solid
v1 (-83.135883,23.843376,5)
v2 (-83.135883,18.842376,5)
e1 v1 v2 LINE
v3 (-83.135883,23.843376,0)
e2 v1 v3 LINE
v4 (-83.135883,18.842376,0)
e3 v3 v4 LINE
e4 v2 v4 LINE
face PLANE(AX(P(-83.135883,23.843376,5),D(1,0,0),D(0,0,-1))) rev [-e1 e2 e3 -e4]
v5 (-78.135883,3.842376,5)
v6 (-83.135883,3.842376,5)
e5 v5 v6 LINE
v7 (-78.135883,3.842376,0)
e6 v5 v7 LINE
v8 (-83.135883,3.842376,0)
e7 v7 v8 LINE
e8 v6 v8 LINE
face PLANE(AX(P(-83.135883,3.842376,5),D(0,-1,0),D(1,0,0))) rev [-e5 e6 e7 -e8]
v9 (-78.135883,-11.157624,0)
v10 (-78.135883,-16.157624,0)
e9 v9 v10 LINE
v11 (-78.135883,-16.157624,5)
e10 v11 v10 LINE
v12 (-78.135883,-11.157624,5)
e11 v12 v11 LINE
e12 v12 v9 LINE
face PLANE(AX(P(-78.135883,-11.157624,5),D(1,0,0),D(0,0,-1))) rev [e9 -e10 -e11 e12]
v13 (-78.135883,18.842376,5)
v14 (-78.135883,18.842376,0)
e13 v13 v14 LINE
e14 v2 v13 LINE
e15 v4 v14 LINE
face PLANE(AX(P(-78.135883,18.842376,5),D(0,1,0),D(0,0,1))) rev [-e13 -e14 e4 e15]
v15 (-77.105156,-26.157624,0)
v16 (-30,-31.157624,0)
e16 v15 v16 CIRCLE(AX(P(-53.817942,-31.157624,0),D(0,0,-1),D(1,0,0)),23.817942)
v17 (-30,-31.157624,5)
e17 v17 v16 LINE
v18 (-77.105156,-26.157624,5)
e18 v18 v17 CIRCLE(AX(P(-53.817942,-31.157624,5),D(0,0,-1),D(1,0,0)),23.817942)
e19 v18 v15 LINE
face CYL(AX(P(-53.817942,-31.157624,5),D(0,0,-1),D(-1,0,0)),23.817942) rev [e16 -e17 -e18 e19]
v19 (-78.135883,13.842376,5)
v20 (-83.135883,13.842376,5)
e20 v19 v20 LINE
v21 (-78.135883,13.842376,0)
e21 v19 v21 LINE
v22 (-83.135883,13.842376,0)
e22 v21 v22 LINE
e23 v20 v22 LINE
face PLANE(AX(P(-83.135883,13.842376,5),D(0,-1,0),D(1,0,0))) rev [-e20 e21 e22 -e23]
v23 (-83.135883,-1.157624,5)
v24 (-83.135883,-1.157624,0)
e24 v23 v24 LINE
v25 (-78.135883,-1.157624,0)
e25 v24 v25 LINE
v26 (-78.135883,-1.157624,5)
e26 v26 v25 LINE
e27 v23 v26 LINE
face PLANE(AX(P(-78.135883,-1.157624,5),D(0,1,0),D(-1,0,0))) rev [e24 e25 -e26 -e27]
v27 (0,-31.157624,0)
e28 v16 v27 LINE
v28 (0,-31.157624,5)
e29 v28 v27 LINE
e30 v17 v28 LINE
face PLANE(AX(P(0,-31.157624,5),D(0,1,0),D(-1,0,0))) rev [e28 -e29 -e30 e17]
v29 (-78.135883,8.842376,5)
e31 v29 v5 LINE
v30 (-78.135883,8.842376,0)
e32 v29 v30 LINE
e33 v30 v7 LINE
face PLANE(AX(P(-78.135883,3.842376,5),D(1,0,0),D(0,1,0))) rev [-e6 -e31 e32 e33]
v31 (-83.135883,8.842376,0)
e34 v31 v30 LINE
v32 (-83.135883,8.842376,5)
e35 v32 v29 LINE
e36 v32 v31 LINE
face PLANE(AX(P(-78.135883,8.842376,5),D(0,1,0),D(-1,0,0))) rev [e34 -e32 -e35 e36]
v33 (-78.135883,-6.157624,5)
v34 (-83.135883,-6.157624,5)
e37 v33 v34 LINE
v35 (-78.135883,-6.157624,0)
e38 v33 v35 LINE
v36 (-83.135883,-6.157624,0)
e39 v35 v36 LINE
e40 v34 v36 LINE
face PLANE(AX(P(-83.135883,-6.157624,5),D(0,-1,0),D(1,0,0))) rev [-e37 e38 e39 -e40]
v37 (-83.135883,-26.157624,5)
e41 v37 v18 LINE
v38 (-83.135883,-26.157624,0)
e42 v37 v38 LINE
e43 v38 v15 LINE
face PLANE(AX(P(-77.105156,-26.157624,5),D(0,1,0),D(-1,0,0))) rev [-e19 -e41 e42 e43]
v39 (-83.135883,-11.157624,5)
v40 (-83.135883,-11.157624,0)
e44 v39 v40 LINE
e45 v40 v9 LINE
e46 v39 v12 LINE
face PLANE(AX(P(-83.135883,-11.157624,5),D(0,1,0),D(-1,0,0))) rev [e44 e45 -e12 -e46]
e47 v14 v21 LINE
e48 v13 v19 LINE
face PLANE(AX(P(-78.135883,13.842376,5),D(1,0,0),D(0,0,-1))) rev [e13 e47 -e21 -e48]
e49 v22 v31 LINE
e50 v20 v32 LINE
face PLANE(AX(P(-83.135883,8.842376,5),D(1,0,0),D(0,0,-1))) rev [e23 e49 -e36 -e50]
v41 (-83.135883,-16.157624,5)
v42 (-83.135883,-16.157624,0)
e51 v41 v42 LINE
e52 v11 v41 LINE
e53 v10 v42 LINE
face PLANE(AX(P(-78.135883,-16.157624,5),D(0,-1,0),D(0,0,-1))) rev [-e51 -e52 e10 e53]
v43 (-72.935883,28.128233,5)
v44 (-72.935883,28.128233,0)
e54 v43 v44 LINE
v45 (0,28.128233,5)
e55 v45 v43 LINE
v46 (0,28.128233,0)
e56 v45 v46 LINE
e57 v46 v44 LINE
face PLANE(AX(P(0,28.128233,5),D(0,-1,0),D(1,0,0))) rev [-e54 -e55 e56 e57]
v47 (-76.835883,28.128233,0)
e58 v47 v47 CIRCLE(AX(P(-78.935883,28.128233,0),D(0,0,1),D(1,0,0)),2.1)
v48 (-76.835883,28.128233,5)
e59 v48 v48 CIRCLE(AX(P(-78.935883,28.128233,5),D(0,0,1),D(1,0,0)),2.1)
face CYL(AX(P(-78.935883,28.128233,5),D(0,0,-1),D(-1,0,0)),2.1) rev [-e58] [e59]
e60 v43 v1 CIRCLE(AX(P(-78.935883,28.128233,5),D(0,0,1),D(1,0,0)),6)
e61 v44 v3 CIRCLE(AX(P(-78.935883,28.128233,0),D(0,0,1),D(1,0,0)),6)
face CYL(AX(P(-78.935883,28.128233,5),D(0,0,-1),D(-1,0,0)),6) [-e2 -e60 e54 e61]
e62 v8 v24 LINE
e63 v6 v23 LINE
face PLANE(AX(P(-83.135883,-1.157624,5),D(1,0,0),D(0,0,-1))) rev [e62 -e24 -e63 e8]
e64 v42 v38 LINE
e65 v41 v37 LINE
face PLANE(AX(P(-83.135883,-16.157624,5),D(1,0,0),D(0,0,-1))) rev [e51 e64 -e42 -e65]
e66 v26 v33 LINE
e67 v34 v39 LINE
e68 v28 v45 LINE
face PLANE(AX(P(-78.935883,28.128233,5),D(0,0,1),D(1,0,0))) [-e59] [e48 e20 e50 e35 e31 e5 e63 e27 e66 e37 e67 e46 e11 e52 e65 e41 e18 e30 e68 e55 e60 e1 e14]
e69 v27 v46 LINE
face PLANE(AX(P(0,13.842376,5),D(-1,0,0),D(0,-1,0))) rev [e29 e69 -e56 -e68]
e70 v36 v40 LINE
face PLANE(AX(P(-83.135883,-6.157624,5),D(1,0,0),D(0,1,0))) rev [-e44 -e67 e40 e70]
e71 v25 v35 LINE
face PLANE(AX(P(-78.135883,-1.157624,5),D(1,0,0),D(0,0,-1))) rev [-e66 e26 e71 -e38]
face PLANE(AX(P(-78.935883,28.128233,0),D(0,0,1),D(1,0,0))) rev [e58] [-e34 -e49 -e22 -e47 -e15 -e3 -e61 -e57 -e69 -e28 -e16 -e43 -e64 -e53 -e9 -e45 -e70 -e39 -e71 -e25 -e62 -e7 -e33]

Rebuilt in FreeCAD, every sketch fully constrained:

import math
import FreeCAD as App
import Part
import Sketcher

V = App.Vector
Q = App.Units.Quantity

doc = App.newDocument("Part")
body = doc.addObject("PartDesign::Body", "Body")

sketch1 = body.newObject("Sketcher::SketchObject", "Sketch")
sketch1.AttachmentSupport = (doc.getObject("XY_Plane"), [""])
sketch1.MapMode = "FlatFace"
sketch1.addGeometry([
    Part.LineSegment(V(-83.135883, 18.842376, 0), V(-78.135883, 18.842376, 0)),
    Part.LineSegment(V(-78.135883, 18.842376, 0), V(-78.135883, 13.842376, 0)),
    Part.LineSegment(V(-78.135883, 13.842376, 0), V(-83.135883, 13.842376, 0)),
    Part.LineSegment(V(-83.135883, 13.842376, 0), V(-83.135883, 8.842376, 0)),
    Part.LineSegment(V(-83.135883, 8.842376, 0), V(-78.135883, 8.842376, 0)),
    Part.LineSegment(V(-78.135883, 8.842376, 0), V(-78.135883, 3.842376, 0)),
    Part.LineSegment(V(-78.135883, 3.842376, 0), V(-83.135883, 3.842376, 0)),
    Part.LineSegment(V(-83.135883, 3.842376, 0), V(-83.135883, -1.157624, 0)),
    Part.LineSegment(V(-83.135883, -1.157624, 0), V(-78.135883, -1.157624, 0)),
    Part.LineSegment(V(-78.135883, -1.157624, 0), V(-78.135883, -6.157624, 0)),
    Part.LineSegment(V(-78.135883, -6.157624, 0), V(-83.135883, -6.157624, 0)),
    Part.LineSegment(V(-83.135883, -6.157624, 0), V(-83.135883, -11.157624, 0)),
    Part.LineSegment(V(-83.135883, -11.157624, 0), V(-78.135883, -11.157624, 0)),
    Part.LineSegment(V(-78.135883, -11.157624, 0), V(-78.135883, -16.157624, 0)),
    Part.LineSegment(V(-78.135883, -16.157624, 0), V(-83.135883, -16.157624, 0)),
    Part.LineSegment(V(-83.135883, -16.157624, 0), V(-83.135883, -26.157624, 0)),
    Part.LineSegment(V(-83.135883, -26.157624, 0), V(-77.105156, -26.157624, 0)),
    Part.ArcOfCircle(Part.Circle(V(-53.817942, -31.157624, 0), V(0, 0, 1), 23.817942), math.radians(0), math.radians(167.881997)),
    Part.LineSegment(V(-30, -31.157624, 0), V(0, -31.157624, 0)),
    Part.LineSegment(V(0, -31.157624, 0), V(0, 28.128233, 0)),
    Part.LineSegment(V(0, 28.128233, 0), V(-72.935883, 28.128233, 0)),
    Part.ArcOfCircle(Part.Circle(V(-78.935883, 28.128233, 0), V(0, 0, 1), 6), math.radians(0), math.radians(134.427004)),
    Part.ArcOfCircle(Part.Circle(V(-78.935883, 28.128233, 0), V(0, 0, 1), 6), math.radians(134.427004), math.radians(225.572996)),
    Part.LineSegment(V(-83.135883, 23.843376, 0), V(-83.135883, 18.842376, 0)),
    Part.Circle(V(-78.935883, 28.128233, 0), V(0, 0, 1), 2.1),
], False)
sketch1.addConstraint([
    Sketcher.Constraint("Coincident", 0, 2, 1, 1),
    Sketcher.Constraint("Coincident", 1, 2, 2, 1),
    Sketcher.Constraint("Coincident", 2, 2, 3, 1),
    Sketcher.Constraint("Coincident", 3, 2, 4, 1),
    Sketcher.Constraint("Coincident", 4, 2, 5, 1),
    Sketcher.Constraint("Coincident", 5, 2, 6, 1),
    Sketcher.Constraint("Coincident", 6, 2, 7, 1),
    Sketcher.Constraint("Coincident", 7, 2, 8, 1),
    Sketcher.Constraint("Coincident", 8, 2, 9, 1),
    Sketcher.Constraint("Coincident", 9, 2, 10, 1),
    Sketcher.Constraint("Coincident", 10, 2, 11, 1),
    Sketcher.Constraint("Coincident", 11, 2, 12, 1),
    Sketcher.Constraint("Coincident", 12, 2, 13, 1),
    Sketcher.Constraint("Coincident", 13, 2, 14, 1),
    Sketcher.Constraint("Coincident", 14, 2, 15, 1),
    Sketcher.Constraint("Coincident", 15, 2, 16, 1),
    Sketcher.Constraint("Coincident", 16, 2, 17, 2),
    Sketcher.Constraint("Coincident", 17, 1, 18, 1),
    Sketcher.Constraint("Coincident", 18, 2, 19, 1),
    Sketcher.Constraint("Coincident", 19, 2, 20, 1),
    Sketcher.Constraint("Coincident", 20, 2, 21, 1),
    Sketcher.Constraint("Tangent", 21, 2, 22, 1),
    Sketcher.Constraint("Coincident", 22, 2, 23, 1),
    Sketcher.Constraint("Coincident", 23, 2, 0, 1),
    Sketcher.Constraint("Horizontal", 0),
    Sketcher.Constraint("Vertical", 1),
    Sketcher.Constraint("Horizontal", 2),
    Sketcher.Constraint("Vertical", 3),
    Sketcher.Constraint("Horizontal", 4),
    Sketcher.Constraint("Vertical", 5),
    Sketcher.Constraint("Horizontal", 6),
    Sketcher.Constraint("Vertical", 7),
    Sketcher.Constraint("Horizontal", 8),
    Sketcher.Constraint("Vertical", 9),
    Sketcher.Constraint("Horizontal", 10),
    Sketcher.Constraint("Vertical", 11),
    Sketcher.Constraint("Horizontal", 12),
    Sketcher.Constraint("Vertical", 13),
    Sketcher.Constraint("Horizontal", 14),
    Sketcher.Constraint("Vertical", 15),
    Sketcher.Constraint("Horizontal", 16),
    Sketcher.Constraint("Horizontal", 18),
    Sketcher.Constraint("Vertical", 19),
    Sketcher.Constraint("Horizontal", 20),
    Sketcher.Constraint("Vertical", 23),
    Sketcher.Constraint("Coincident", 24, 3, 21, 3),
    Sketcher.Constraint("Equal", 21, 22),
    Sketcher.Constraint("PointOnObject", 18, 2, -2),
    Sketcher.Constraint("Horizontal", 24, 3, 19, 2),
    Sketcher.Constraint("Vertical", 1, 2, 4, 2),
    Sketcher.Constraint("Vertical", 3, 2, 6, 2),
    Sketcher.Constraint("Vertical", 5, 2, 8, 2),
    Sketcher.Constraint("Vertical", 7, 2, 10, 2),
    Sketcher.Constraint("Vertical", 9, 2, 12, 2),
    Sketcher.Constraint("Vertical", 11, 2, 14, 2),
    Sketcher.Constraint("Vertical", 15, 2, 21, 2),
    Sketcher.Constraint("Vertical", 21, 2, 22, 2),
    Sketcher.Constraint("Equal", 14, 1),
    Sketcher.Constraint("Equal", 1, 3),
    Sketcher.Constraint("Equal", 3, 5),
    Sketcher.Constraint("Equal", 5, 7),
    Sketcher.Constraint("Equal", 7, 9),
    Sketcher.Constraint("Equal", 9, 11),
    Sketcher.Constraint("Equal", 11, 13),
    Sketcher.Constraint("Radius", 21, Q("6 mm")),
    Sketcher.Constraint("Diameter", 24, Q("4.2 mm")),
    Sketcher.Constraint("DistanceX", 0, 1, 0, 2, Q("5 mm")),
    Sketcher.Constraint("DistanceX", 18, 1, 18, 2, Q("30 mm")),
    Sketcher.Constraint("DistanceY", 15, 2, 15, 1, Q("10 mm")),
    Sketcher.Constraint("DistanceY", 17, 3, 0, 2, Q("50 mm")),
    Sketcher.Constraint("DistanceY", 17, 1, 16, 2, Q("5 mm")),
    Sketcher.Constraint("DistanceX", 21, 3, 0, 2, Q("0.8 mm")),
    Sketcher.Constraint("DistanceY", 23, 2, 23, 1, Q("5.001 mm")),
    Sketcher.Constraint("Radius", 17, Q("23.817942 mm")),
    Sketcher.Constraint("DistanceX", 16, 1, 16, 2, Q("6.030727 mm")),
    Sketcher.Constraint("DistanceY", -1, 1, 21, 2, Q("32.41309 mm")),
])
pad1 = body.newObject("PartDesign::Pad", "Pad")
pad1.Profile = sketch1
pad1.Length = 5

doc.recompute()
